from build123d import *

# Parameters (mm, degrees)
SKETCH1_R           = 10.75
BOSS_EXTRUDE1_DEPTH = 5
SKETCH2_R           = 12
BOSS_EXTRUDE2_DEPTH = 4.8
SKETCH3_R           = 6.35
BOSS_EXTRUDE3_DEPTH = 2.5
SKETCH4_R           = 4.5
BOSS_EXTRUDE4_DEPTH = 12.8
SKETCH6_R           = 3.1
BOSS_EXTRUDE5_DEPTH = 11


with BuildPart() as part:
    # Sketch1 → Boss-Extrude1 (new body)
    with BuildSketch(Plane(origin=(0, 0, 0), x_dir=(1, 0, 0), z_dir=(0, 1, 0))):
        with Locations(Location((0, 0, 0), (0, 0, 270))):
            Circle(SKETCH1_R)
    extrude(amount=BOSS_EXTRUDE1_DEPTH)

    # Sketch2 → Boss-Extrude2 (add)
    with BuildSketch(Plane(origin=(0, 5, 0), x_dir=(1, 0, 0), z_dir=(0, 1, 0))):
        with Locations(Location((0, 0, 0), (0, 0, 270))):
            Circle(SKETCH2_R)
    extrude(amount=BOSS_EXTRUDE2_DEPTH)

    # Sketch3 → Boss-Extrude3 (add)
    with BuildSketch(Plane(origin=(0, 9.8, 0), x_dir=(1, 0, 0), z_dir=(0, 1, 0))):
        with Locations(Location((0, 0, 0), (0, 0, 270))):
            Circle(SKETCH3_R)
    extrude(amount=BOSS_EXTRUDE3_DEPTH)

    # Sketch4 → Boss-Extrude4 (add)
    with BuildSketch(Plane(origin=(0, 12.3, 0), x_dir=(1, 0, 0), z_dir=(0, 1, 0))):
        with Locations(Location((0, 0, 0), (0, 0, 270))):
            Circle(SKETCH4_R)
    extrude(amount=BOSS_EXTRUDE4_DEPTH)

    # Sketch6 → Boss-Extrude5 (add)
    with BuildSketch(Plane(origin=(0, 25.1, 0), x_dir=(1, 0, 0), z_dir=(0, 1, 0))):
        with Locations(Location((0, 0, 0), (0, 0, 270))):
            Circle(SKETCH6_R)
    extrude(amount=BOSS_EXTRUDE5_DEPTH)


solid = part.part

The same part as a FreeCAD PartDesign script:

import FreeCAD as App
import Part
import Sketcher

V = App.Vector
Q = App.Units.Quantity

doc = App.newDocument("Part")
body = doc.addObject("PartDesign::Body", "Body")

sketch1 = body.newObject("Sketcher::SketchObject", "Sketch")
sketch1.AttachmentSupport = (doc.getObject("XZ_Plane"), [""])
sketch1.MapMode = "FlatFace"
sketch1.addGeometry(Part.Circle(V(0, 0, 0), V(0, 0, 1), 11), False)
sketch1.addConstraint([
    Sketcher.Constraint("Coincident", 0, 3, -1, 1),
    Sketcher.Constraint("Diameter", 0, Q("21.5 mm")),
])
pad1 = body.newObject("PartDesign::Pad", "Pad")
pad1.Profile = sketch1
pad1.Length = 5
pad1.Reversed = True

sketch2 = body.newObject("Sketcher::SketchObject", "Sketch001")
sketch2.AttachmentSupport = (doc.getObject("XZ_Plane"), [""])
sketch2.MapMode = "FlatFace"
sketch2.AttachmentOffset = App.Placement(V(0, 0, -5), App.Rotation())
sketch2.addGeometry(Part.Circle(V(0, 0, 0), V(0, 0, 1), 12), False)
sketch2.addConstraint([
    Sketcher.Constraint("Coincident", 0, 3, -1, 1),
    Sketcher.Constraint("Diameter", 0, Q("24 mm")),
])
pad2 = body.newObject("PartDesign::Pad", "Pad001")
pad2.Profile = sketch2
pad2.Length = 4.8
pad2.Reversed = True

sketch3 = body.newObject("Sketcher::SketchObject", "Sketch002")
sketch3.AttachmentSupport = (doc.getObject("XZ_Plane"), [""])
sketch3.MapMode = "FlatFace"
sketch3.AttachmentOffset = App.Placement(V(0, 0, -9.8), App.Rotation())
sketch3.addGeometry(Part.Circle(V(0, 0, 0), V(0, 0, 1), 6), False)
sketch3.addConstraint([
    Sketcher.Constraint("Coincident", 0, 3, -1, 1),
    Sketcher.Constraint("Diameter", 0, Q("12.7 mm")),
])
pad3 = body.newObject("PartDesign::Pad", "Pad002")
pad3.Profile = sketch3
pad3.Length = 2.5
pad3.Reversed = True

sketch4 = body.newObject("Sketcher::SketchObject", "Sketch003")
sketch4.AttachmentSupport = (doc.getObject("XZ_Plane"), [""])
sketch4.MapMode = "FlatFace"
sketch4.AttachmentOffset = App.Placement(V(0, 0, -12.3), App.Rotation())
sketch4.addGeometry(Part.Circle(V(0, 0, 0), V(0, 0, 1), 4.5), False)
sketch4.addConstraint([
    Sketcher.Constraint("Coincident", 0, 3, -1, 1),
    Sketcher.Constraint("Diameter", 0, Q("9 mm")),
])
pad4 = body.newObject("PartDesign::Pad", "Pad003")
pad4.Profile = sketch4
pad4.Length = 12.8
pad4.Reversed = True

sketch5 = body.newObject("Sketcher::SketchObject", "Sketch004")
sketch5.AttachmentSupport = (doc.getObject("XZ_Plane"), [""])
sketch5.MapMode = "FlatFace"
sketch5.AttachmentOffset = App.Placement(V(0, 0, -25.1), App.Rotation())
sketch5.addGeometry(Part.Circle(V(0, 0, 0), V(0, 0, 1), 3.1), False)
sketch5.addConstraint([
    Sketcher.Constraint("Coincident", 0, 3, -1, 1),
    Sketcher.Constraint("Diameter", 0, Q("6.2 mm")),
])
pad5 = body.newObject("PartDesign::Pad", "Pad004")
pad5.Profile = sketch5
pad5.Length = 11
pad5.Reversed = True

doc.recompute()
